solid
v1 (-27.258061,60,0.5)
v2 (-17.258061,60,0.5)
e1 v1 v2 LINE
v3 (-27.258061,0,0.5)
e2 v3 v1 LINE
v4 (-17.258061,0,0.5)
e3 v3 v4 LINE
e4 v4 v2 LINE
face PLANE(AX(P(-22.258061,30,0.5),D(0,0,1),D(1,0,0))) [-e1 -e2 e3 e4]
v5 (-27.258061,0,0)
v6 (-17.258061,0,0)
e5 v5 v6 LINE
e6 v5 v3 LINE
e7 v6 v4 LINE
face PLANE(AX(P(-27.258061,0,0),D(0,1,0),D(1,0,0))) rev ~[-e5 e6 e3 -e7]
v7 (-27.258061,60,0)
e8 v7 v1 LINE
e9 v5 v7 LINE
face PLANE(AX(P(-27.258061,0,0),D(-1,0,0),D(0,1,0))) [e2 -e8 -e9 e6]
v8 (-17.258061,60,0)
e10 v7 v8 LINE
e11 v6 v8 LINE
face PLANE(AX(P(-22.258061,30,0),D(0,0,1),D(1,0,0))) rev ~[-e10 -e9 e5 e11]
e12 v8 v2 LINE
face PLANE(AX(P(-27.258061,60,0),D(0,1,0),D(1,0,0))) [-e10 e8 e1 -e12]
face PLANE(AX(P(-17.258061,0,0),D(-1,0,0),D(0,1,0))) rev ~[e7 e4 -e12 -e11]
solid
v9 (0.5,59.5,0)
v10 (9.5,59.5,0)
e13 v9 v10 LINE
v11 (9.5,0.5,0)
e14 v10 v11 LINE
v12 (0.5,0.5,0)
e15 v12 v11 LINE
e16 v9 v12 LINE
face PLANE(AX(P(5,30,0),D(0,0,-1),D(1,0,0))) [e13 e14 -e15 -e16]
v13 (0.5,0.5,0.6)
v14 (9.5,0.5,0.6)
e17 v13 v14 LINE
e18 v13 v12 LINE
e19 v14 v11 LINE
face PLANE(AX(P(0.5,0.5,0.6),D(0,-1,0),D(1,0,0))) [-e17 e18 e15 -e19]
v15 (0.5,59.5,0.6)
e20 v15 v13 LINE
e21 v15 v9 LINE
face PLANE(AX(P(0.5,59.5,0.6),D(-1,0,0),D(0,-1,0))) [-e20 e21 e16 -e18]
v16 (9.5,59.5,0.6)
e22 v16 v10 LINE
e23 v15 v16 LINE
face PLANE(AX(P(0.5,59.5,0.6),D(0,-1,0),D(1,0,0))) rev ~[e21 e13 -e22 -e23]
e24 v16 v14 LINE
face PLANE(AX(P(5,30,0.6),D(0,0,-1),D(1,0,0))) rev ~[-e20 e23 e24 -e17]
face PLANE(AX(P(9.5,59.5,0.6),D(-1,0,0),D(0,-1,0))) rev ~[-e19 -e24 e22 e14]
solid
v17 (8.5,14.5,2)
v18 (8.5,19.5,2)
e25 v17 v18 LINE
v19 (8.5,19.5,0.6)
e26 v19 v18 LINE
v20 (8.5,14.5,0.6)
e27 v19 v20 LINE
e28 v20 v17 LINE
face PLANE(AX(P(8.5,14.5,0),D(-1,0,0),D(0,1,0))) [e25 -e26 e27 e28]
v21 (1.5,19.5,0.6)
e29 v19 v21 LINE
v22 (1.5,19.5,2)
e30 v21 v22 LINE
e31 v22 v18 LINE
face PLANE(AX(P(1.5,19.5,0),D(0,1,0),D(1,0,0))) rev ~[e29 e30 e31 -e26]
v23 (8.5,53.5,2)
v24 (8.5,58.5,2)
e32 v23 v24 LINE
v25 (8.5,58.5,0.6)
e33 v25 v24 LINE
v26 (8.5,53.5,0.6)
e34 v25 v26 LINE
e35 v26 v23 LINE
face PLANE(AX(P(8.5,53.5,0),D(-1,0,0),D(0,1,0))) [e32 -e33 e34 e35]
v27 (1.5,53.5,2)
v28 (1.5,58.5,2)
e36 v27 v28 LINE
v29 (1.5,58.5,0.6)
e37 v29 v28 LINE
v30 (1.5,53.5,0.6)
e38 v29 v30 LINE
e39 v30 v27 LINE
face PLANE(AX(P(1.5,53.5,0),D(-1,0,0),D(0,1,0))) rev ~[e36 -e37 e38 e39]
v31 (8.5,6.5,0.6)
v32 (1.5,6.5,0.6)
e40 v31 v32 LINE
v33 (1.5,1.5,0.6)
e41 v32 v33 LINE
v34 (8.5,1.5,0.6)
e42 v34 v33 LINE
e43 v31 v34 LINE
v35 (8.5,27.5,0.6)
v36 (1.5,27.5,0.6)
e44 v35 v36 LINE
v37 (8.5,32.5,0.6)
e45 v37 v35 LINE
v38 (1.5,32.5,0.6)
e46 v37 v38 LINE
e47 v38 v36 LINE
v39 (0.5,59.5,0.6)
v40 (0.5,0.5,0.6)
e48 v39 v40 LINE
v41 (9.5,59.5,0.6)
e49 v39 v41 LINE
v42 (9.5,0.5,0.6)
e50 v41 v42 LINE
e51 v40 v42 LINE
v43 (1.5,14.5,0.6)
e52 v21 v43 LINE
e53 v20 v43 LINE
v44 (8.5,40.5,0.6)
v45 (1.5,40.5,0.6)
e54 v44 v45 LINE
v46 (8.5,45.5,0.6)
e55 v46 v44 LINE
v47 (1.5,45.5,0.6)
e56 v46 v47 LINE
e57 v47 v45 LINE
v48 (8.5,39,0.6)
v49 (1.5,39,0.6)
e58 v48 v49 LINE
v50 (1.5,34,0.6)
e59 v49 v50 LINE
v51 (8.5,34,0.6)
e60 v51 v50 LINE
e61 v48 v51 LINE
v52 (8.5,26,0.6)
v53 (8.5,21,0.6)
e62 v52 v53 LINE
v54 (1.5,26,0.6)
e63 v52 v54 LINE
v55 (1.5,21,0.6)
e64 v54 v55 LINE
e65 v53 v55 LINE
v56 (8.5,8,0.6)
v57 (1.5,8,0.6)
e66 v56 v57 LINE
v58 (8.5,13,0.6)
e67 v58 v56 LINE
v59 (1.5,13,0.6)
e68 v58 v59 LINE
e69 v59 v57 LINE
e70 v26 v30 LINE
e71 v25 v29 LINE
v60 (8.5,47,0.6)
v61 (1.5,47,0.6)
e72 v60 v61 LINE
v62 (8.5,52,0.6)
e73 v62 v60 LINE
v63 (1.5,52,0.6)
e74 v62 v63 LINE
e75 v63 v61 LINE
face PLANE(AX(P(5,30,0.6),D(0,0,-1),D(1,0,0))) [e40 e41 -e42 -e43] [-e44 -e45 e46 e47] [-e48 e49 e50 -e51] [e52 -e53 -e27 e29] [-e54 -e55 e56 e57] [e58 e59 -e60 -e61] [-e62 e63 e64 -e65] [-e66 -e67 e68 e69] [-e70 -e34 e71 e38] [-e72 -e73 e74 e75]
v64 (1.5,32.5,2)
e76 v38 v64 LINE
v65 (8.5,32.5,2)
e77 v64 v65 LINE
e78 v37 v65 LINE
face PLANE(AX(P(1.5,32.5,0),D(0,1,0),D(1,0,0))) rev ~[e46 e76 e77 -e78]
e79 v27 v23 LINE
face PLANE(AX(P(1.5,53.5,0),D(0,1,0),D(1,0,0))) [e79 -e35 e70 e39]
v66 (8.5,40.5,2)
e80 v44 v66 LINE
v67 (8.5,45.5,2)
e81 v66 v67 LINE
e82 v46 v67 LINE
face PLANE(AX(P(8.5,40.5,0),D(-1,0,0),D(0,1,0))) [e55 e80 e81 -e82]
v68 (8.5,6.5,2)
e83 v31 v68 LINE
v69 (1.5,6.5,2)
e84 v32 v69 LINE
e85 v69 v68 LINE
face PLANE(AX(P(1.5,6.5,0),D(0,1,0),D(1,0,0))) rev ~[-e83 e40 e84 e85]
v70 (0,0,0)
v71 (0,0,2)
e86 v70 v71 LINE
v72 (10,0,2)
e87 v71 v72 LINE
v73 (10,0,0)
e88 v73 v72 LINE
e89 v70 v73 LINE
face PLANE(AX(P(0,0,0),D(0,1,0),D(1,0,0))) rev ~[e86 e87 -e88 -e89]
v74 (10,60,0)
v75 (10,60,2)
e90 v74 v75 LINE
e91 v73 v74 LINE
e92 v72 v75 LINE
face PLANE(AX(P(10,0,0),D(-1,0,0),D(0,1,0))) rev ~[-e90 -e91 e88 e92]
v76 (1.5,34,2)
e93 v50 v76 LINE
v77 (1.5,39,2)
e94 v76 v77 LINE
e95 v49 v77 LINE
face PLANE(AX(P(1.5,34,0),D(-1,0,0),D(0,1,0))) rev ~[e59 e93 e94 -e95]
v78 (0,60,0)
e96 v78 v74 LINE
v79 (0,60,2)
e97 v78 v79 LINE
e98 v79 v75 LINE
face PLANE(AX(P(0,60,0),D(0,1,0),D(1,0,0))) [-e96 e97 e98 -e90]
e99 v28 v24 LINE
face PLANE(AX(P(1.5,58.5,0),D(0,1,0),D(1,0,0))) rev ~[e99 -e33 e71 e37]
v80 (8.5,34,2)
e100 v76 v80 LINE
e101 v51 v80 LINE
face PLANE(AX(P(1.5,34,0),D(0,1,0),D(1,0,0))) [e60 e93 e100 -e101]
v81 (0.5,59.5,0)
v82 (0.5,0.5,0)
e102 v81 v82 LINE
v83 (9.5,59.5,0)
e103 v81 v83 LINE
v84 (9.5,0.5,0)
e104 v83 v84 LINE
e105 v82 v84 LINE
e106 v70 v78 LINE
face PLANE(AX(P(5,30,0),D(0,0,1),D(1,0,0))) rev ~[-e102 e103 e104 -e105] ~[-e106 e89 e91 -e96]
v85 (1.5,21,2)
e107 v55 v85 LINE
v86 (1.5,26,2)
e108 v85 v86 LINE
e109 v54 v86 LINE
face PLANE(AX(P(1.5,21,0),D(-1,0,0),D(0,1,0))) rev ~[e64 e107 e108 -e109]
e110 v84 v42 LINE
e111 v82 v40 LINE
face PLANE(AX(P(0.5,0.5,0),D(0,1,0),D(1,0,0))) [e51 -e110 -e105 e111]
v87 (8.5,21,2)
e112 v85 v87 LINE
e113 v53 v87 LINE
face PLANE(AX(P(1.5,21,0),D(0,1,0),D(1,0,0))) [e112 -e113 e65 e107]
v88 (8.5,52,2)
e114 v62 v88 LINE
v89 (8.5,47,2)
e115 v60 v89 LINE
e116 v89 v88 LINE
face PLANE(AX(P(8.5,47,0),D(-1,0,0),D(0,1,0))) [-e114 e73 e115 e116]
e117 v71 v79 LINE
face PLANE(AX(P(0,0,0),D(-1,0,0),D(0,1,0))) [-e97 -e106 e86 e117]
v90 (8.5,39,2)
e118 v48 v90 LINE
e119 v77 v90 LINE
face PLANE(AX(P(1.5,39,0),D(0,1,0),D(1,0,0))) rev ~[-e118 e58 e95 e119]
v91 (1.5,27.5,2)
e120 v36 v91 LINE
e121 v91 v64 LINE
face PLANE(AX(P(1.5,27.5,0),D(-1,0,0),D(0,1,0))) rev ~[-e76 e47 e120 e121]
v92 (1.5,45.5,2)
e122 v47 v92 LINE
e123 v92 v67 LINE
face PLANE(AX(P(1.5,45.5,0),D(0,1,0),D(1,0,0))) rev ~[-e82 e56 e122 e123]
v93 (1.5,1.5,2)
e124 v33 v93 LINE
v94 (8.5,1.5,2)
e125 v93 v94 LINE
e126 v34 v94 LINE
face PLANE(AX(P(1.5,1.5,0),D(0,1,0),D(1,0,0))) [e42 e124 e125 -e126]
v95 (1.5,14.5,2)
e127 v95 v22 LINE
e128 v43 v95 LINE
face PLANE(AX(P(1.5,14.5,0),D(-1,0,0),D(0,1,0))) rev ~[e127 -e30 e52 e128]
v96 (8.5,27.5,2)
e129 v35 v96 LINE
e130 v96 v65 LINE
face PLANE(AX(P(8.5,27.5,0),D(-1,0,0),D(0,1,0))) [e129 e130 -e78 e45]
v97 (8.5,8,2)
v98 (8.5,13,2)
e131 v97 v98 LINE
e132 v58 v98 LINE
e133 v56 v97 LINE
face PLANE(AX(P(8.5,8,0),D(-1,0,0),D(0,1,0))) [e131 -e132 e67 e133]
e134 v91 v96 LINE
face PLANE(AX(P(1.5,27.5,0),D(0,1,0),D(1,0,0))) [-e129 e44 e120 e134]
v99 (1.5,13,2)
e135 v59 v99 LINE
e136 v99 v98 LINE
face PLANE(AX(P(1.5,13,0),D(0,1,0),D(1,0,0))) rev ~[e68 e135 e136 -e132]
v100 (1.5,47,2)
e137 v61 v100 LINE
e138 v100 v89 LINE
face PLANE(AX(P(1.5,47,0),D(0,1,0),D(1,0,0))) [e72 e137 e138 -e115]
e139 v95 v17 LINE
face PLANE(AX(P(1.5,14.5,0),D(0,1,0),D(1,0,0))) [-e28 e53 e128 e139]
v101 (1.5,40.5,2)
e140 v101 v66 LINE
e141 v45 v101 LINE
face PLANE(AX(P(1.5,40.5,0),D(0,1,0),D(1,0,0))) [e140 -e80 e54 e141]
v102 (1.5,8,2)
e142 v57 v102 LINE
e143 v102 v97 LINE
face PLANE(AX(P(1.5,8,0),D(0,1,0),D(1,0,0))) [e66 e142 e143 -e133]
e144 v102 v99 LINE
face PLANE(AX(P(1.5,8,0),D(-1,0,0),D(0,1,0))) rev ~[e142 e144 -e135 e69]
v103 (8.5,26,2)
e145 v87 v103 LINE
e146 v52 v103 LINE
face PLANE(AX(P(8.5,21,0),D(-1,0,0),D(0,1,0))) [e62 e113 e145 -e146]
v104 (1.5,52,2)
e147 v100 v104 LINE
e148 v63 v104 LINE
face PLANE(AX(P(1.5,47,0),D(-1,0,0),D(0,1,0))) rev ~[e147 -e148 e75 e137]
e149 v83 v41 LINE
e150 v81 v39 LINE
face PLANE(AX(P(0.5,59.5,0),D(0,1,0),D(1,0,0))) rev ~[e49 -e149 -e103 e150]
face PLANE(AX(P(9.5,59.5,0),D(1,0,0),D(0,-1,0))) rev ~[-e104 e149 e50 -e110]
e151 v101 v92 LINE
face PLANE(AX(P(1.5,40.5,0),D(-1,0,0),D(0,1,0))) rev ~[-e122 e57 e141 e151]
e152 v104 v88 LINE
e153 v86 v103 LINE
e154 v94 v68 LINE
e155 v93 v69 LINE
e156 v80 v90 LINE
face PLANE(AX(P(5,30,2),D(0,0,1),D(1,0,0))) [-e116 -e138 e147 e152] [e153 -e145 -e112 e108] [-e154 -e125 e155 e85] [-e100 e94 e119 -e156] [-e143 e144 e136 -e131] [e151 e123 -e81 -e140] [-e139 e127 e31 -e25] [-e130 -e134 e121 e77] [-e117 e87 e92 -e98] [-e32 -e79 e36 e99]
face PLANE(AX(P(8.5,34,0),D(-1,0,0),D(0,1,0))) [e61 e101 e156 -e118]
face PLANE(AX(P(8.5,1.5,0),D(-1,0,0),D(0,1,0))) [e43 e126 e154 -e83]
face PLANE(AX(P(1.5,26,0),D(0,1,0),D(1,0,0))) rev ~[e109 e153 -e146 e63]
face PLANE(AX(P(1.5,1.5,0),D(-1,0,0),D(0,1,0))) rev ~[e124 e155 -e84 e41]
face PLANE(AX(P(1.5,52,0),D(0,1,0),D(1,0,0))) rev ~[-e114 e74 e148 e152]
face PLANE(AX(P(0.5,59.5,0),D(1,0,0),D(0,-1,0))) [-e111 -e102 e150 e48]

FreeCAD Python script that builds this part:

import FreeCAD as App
import Part
import Sketcher

V = App.Vector


def add_polygon(sketch, points):
    """Adds a closed chain of lines whose ends are joined by coincident constraints."""
    first, n = sketch.GeometryCount, len(points)
    for a, b in zip(points, points[1:] + points[:1]):
        sketch.addGeometry(Part.LineSegment(App.Vector(*a, 0), App.Vector(*b, 0)), False)
    for i in range(n):
        sketch.addConstraint(Sketcher.Constraint("Coincident", first + i, 2, first + (i + 1) % n, 1))

doc = App.newDocument("Part")
body = doc.addObject("PartDesign::Body", "Body")

# Sketch on XY plane
sketch1 = body.newObject("Sketcher::SketchObject", "Sketch")
sketch1.AttachmentSupport = (doc.getObject("XY_Plane"), [""])
sketch1.MapMode = "FlatFace"
add_polygon(sketch1, [(0, 60), (0, 0), (10, 0), (10, 60)])  # lines 0-3
add_polygon(sketch1, [(8, 2), (2, 2), (2, 6), (8, 6)])  # lines 4-7
add_polygon(sketch1, [(8, 8), (2, 8), (2, 13), (8, 13)])  # lines 8-11
add_polygon(sketch1, [(8, 14), (2, 14), (2, 20), (8, 20)])  # lines 12-15
add_polygon(sketch1, [(8, 21), (2, 21), (2, 26), (8, 26)])  # lines 16-19
add_polygon(sketch1, [(8, 28), (2, 28), (2, 32), (8, 32)])  # lines 20-23
add_polygon(sketch1, [(8, 34), (2, 34), (2, 39), (8, 39)])  # lines 24-27
add_polygon(sketch1, [(8, 40), (2, 40), (2, 46), (8, 46)])  # lines 28-31
add_polygon(sketch1, [(8, 47), (2, 47), (2, 52), (8, 52)])  # lines 32-35
add_polygon(sketch1, [(8, 54), (2, 54), (2, 58), (8, 58)])  # lines 36-39
sketch1.addConstraint(Sketcher.Constraint("Vertical", 0))
sketch1.addConstraint(Sketcher.Constraint("Horizontal", 1))
sketch1.addConstraint(Sketcher.Constraint("Vertical", 2))
sketch1.addConstraint(Sketcher.Constraint("Horizontal", 3))
sketch1.addConstraint(Sketcher.Constraint("Horizontal", 4))
sketch1.addConstraint(Sketcher.Constraint("Vertical", 5))
sketch1.addConstraint(Sketcher.Constraint("Horizontal", 6))
sketch1.addConstraint(Sketcher.Constraint("Vertical", 7))
sketch1.addConstraint(Sketcher.Constraint("Horizontal", 8))
sketch1.addConstraint(Sketcher.Constraint("Vertical", 9))
sketch1.addConstraint(Sketcher.Constraint("Horizontal", 10))
sketch1.addConstraint(Sketcher.Constraint("Vertical", 11))
sketch1.addConstraint(Sketcher.Constraint("Horizontal", 12))
sketch1.addConstraint(Sketcher.Constraint("Vertical", 13))
sketch1.addConstraint(Sketcher.Constraint("Horizontal", 14))
sketch1.addConstraint(Sketcher.Constraint("Vertical", 15))
sketch1.addConstraint(Sketcher.Constraint("Horizontal", 16))
sketch1.addConstraint(Sketcher.Constraint("Vertical", 17))
sketch1.addConstraint(Sketcher.Constraint("Horizontal", 18))
sketch1.addConstraint(Sketcher.Constraint("Vertical", 19))
sketch1.addConstraint(Sketcher.Constraint("Horizontal", 20))
sketch1.addConstraint(Sketcher.Constraint("Vertical", 21))
sketch1.addConstraint(Sketcher.Constraint("Horizontal", 22))
sketch1.addConstraint(Sketcher.Constraint("Vertical", 23))
sketch1.addConstraint(Sketcher.Constraint("Horizontal", 24))
sketch1.addConstraint(Sketcher.Constraint("Vertical", 25))
sketch1.addConstraint(Sketcher.Constraint("Horizontal", 26))
sketch1.addConstraint(Sketcher.Constraint("Vertical", 27))
sketch1.addConstraint(Sketcher.Constraint("Horizontal", 28))
sketch1.addConstraint(Sketcher.Constraint("Vertical", 29))
sketch1.addConstraint(Sketcher.Constraint("Horizontal", 30))
sketch1.addConstraint(Sketcher.Constraint("Vertical", 31))
sketch1.addConstraint(Sketcher.Constraint("Horizontal", 32))
sketch1.addConstraint(Sketcher.Constraint("Vertical", 33))
sketch1.addConstraint(Sketcher.Constraint("Horizontal", 34))
sketch1.addConstraint(Sketcher.Constraint("Vertical", 35))
sketch1.addConstraint(Sketcher.Constraint("Horizontal", 36))
sketch1.addConstraint(Sketcher.Constraint("Vertical", 37))
sketch1.addConstraint(Sketcher.Constraint("Horizontal", 38))
sketch1.addConstraint(Sketcher.Constraint("Vertical", 39))
sketch1.addConstraint(Sketcher.Constraint("Coincident", 0, 2, -1, 1))
sketch1.addConstraint(Sketcher.Constraint("Vertical", 5, 2, 8, 2))
sketch1.addConstraint(Sketcher.Constraint("Vertical", 7, 2, 10, 2))
sketch1.addConstraint(Sketcher.Constraint("Vertical", 9, 2, 12, 2))
sketch1.addConstraint(Sketcher.Constraint("Vertical", 11, 2, 14, 2))
sketch1.addConstraint(Sketcher.Constraint("Vertical", 13, 2, 16, 2))
sketch1.addConstraint(Sketcher.Constraint("Vertical", 15, 2, 18, 2))
sketch1.addConstraint(Sketcher.Constraint("Vertical", 17, 2, 20, 2))
sketch1.addConstraint(Sketcher.Constraint("Vertical", 19, 2, 22, 2))
sketch1.addConstraint(Sketcher.Constraint("Vertical", 21, 2, 24, 2))
sketch1.addConstraint(Sketcher.Constraint("Vertical", 23, 2, 26, 2))
sketch1.addConstraint(Sketcher.Constraint("Vertical", 25, 2, 28, 2))
sketch1.addConstraint(Sketcher.Constraint("Vertical", 27, 2, 30, 2))
sketch1.addConstraint(Sketcher.Constraint("Vertical", 29, 2, 32, 2))
sketch1.addConstraint(Sketcher.Constraint("Vertical", 31, 2, 34, 2))
sketch1.addConstraint(Sketcher.Constraint("Vertical", 33, 2, 36, 2))
sketch1.addConstraint(Sketcher.Constraint("Vertical", 35, 2, 38, 2))
sketch1.addConstraint(Sketcher.Constraint("Equal", 7, 9))
sketch1.addConstraint(Sketcher.Constraint("Equal", 11, 13))
sketch1.addConstraint(Sketcher.Constraint("Equal", 15, 17))
sketch1.addConstraint(Sketcher.Constraint("Equal", 19, 21))
sketch1.addConstraint(Sketcher.Constraint("Equal", 23, 25))
sketch1.addConstraint(Sketcher.Constraint("Equal", 27, 29))
sketch1.addConstraint(Sketcher.Constraint("Equal", 31, 33))
sketch1.addConstraint(Sketcher.Constraint("Equal", 35, 37))
sketch1.addConstraint(Sketcher.Constraint("DistanceX", 1, 1, 1, 2, 10.0))
sketch1.addConstraint(Sketcher.Constraint("DistanceX", 4, 2, 4, 1, 7.0))
sketch1.addConstraint(Sketcher.Constraint("DistanceY", 0, 2, 0, 1, 60.0))
sketch1.addConstraint(Sketcher.Constraint("DistanceY", 5, 1, 5, 2, 5.0))
sketch1.addConstraint(Sketcher.Constraint("DistanceY", -1, 1, 8, 2, 8.0))
sketch1.addConstraint(Sketcher.Constraint("DistanceY", -1, 1, 16, 2, 21.0))
sketch1.addConstraint(Sketcher.Constraint("DistanceY", -1, 1, 24, 2, 34.0))
sketch1.addConstraint(Sketcher.Constraint("DistanceY", -1, 1, 32, 2, 47.0))
sketch1.addConstraint(Sketcher.Constraint("DistanceY", 5, 2, 12, 2, 8.0))
sketch1.addConstraint(Sketcher.Constraint("DistanceY", 13, 2, 20, 2, 8.0))
sketch1.addConstraint(Sketcher.Constraint("DistanceY", 21, 2, 28, 2, 8.0))
sketch1.addConstraint(Sketcher.Constraint("DistanceY", 29, 2, 36, 2, 8.0))
sketch1.addConstraint(Sketcher.Constraint("DistanceX", -1, 1, 4, 2, 1.5))
sketch1.addConstraint(Sketcher.Constraint("DistanceY", -1, 1, 4, 2, 1.5))
pad1 = body.newObject("PartDesign::Pad", "Pad")
pad1.Profile = sketch1
pad1.Length = 2

# Sketch on XY plane
sketch2 = body.newObject("Sketcher::SketchObject", "Sketch001")
sketch2.AttachmentSupport = (doc.getObject("XY_Plane"), [""])
sketch2.MapMode = "FlatFace"
add_polygon(sketch2, [(0, 0), (0, 60), (10, 60), (10, 0)])  # lines 0-3
sketch2.addConstraint(Sketcher.Constraint("Vertical", 0))
sketch2.addConstraint(Sketcher.Constraint("Horizontal", 1))
sketch2.addConstraint(Sketcher.Constraint("Vertical", 2))
sketch2.addConstraint(Sketcher.Constraint("Horizontal", 3))
sketch2.addConstraint(Sketcher.Constraint("DistanceX", 1, 1, 1, 2, 9.0))
sketch2.addConstraint(Sketcher.Constraint("DistanceY", 0, 1, 0, 2, 59.0))
sketch2.addConstraint(Sketcher.Constraint("DistanceX", -1, 1, 0, 2, 0.5))
sketch2.addConstraint(Sketcher.Constraint("DistanceY", -1, 1, 0, 2, 59.5))
pocket1 = body.newObject("PartDesign::Pocket", "Pocket")
pocket1.Profile = sketch2
pocket1.Length = 0.6
pocket1.Reversed = True
body2 = doc.addObject("PartDesign::Body", "Body001")

# Sketch on XY plane
sketch3 = body2.newObject("Sketcher::SketchObject", "Sketch002")
sketch3.AttachmentSupport = (doc.getObject("XY_Plane001"), [""])
sketch3.MapMode = "FlatFace"
add_polygon(sketch3, [(-27, 60), (-27, 0), (-17, 0), (-17, 60)])  # lines 0-3
sketch3.addConstraint(Sketcher.Constraint("Vertical", 0))
sketch3.addConstraint(Sketcher.Constraint("Horizontal", 1))
sketch3.addConstraint(Sketcher.Constraint("Vertical", 2))
sketch3.addConstraint(Sketcher.Constraint("Horizontal", 3))
sketch3.addConstraint(Sketcher.Constraint("PointOnObject", 0, 2, -1))
sketch3.addConstraint(Sketcher.Constraint("DistanceX", 1, 1, 1, 2, 10.0))
sketch3.addConstraint(Sketcher.Constraint("DistanceY", 0, 2, 0, 1, 60.0))
sketch3.addConstraint(Sketcher.Constraint("DistanceX", 0, 2, -1, 1, 27.258061))
pad2 = body2.newObject("PartDesign::Pad", "Pad001")
pad2.Profile = sketch3
pad2.Length = 0.5
body3 = doc.addObject("PartDesign::Body", "Body002")

# Sketch on XY plane
sketch4 = body3.newObject("Sketcher::SketchObject", "Sketch003")
sketch4.AttachmentSupport = (doc.getObject("XY_Plane002"), [""])
sketch4.MapMode = "FlatFace"
sketch4.AttachmentOffset = App.Placement(V(0, 0, 0.6), App.Rotation())
add_polygon(sketch4, [(0, 0), (0, 60), (10, 60), (10, 0)])  # lines 0-3
sketch4.addConstraint(Sketcher.Constraint("Vertical", 0))
sketch4.addConstraint(Sketcher.Constraint("Horizontal", 1))
sketch4.addConstraint(Sketcher.Constraint("Vertical", 2))
sketch4.addConstraint(Sketcher.Constraint("Horizontal", 3))
sketch4.addConstraint(Sketcher.Constraint("DistanceX", 1, 1, 1, 2, 9.0))
sketch4.addConstraint(Sketcher.Constraint("DistanceY", 0, 1, 0, 2, 59.0))
sketch4.addConstraint(Sketcher.Constraint("DistanceX", -1, 1, 0, 2, 0.5))
sketch4.addConstraint(Sketcher.Constraint("DistanceY", -1, 1, 0, 2, 59.5))
pad3 = body3.newObject("PartDesign::Pad", "Pad002")
pad3.Profile = sketch4
pad3.Length = 0.6
pad3.Reversed = True

doc.recompute()
